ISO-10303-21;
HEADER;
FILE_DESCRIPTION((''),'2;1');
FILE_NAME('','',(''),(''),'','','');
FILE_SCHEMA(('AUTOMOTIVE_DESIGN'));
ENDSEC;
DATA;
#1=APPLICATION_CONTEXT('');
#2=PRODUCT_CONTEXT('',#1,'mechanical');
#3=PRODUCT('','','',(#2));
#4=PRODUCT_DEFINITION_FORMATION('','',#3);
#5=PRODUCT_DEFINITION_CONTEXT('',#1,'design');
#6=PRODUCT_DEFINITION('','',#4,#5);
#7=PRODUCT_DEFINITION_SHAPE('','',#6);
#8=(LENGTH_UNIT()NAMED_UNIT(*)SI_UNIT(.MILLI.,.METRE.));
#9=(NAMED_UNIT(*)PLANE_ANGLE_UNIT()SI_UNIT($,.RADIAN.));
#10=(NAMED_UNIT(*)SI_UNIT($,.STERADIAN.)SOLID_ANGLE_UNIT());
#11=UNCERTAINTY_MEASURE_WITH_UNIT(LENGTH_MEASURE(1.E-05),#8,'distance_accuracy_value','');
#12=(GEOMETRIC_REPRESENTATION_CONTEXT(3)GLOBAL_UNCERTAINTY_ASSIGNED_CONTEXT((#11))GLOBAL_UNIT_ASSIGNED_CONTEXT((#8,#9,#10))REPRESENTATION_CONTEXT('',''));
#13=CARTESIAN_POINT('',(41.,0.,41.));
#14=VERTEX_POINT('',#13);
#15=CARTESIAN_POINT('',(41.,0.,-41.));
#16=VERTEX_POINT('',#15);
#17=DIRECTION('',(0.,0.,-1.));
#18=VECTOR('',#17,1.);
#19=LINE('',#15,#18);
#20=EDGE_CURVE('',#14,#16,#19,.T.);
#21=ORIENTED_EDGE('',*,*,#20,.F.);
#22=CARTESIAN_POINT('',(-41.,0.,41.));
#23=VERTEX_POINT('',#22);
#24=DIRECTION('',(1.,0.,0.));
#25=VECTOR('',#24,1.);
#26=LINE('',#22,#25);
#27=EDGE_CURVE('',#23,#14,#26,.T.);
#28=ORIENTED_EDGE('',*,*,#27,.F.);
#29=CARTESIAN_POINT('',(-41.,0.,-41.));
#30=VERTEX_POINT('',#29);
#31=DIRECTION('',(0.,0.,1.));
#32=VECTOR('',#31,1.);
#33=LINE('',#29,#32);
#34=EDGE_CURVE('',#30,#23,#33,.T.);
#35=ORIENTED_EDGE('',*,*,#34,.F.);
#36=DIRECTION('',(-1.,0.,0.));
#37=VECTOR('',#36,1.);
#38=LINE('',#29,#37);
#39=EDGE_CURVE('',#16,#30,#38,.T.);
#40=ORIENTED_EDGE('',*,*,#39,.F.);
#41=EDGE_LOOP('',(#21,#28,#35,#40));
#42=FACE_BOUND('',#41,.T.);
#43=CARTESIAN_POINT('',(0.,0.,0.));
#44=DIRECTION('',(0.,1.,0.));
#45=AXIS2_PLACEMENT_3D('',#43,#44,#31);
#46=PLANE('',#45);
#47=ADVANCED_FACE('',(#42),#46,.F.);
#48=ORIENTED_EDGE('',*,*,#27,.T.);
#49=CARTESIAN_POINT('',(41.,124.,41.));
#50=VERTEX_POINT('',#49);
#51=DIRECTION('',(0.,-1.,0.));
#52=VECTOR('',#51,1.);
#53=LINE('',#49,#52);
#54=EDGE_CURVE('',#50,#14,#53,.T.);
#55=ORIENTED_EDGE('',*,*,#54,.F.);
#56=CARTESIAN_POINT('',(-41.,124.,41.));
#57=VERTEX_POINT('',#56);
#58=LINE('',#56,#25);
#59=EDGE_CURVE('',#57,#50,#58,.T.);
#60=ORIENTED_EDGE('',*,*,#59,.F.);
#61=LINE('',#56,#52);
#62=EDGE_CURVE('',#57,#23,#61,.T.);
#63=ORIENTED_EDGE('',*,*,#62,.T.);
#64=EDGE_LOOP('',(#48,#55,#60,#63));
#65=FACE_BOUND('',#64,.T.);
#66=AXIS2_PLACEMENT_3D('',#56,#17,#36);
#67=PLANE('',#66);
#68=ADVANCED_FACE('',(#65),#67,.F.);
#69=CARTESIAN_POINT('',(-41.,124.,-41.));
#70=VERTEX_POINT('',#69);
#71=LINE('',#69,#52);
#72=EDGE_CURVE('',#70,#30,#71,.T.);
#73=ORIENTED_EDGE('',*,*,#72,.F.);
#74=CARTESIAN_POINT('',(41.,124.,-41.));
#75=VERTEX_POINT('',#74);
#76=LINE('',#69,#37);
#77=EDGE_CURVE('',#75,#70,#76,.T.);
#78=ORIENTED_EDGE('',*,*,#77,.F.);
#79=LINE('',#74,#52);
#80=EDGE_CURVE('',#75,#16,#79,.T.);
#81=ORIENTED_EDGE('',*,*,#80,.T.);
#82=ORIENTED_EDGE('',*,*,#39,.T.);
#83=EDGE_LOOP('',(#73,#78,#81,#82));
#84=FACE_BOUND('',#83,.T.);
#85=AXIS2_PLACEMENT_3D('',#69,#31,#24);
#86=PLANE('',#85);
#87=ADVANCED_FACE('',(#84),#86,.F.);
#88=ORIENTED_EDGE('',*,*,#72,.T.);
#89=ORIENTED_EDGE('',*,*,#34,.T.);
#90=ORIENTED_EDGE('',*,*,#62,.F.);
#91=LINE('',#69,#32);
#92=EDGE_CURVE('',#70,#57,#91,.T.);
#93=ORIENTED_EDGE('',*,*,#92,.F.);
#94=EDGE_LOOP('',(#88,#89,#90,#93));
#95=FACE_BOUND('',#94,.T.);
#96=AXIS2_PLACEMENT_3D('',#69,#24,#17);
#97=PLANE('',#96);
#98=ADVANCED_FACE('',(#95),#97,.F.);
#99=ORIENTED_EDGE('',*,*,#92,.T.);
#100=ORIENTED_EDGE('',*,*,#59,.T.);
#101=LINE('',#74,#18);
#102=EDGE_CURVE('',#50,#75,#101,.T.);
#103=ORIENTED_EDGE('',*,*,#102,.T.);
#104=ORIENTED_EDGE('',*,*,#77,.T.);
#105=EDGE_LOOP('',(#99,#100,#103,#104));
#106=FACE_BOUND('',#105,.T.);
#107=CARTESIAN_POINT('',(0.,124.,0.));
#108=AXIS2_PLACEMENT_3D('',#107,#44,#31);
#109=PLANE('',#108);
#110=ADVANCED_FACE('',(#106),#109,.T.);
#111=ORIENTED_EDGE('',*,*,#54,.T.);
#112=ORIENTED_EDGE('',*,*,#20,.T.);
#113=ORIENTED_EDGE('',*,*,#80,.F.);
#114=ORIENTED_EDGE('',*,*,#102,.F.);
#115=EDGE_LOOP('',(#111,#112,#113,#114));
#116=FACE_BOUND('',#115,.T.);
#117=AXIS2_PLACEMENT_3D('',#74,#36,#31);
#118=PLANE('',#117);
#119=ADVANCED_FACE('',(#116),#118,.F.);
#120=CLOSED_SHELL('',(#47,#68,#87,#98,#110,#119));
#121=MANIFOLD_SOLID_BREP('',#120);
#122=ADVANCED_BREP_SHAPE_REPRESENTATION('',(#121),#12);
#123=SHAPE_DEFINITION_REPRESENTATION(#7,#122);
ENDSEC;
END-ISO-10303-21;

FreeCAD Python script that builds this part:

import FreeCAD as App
import Part
import Sketcher
from FreeCAD import Vector

doc = App.newDocument("Part")
params = doc.addObject("Spreadsheet::Sheet", "Params")
for row, (alias, value) in enumerate([
    ("sketch1_width", "82 mm"),
    ("pad1_length", "124 mm"),
], start=1):
    params.set(f"A{row}", alias)
    params.set(f"B{row}", "=" + value)
    params.setAlias(f"B{row}", alias)

body = doc.addObject("PartDesign::Body", "Body")

sketch1 = doc.addObject("Sketcher::SketchObject", "Sketch")
body.addObject(sketch1)
sketch1.AttachmentSupport = (doc.XZ_Plane, [""])
sketch1.MapMode = "FlatFace"
sketch1.addGeometry([
    Part.LineSegment(Vector(-41, -41, 0), Vector(-41, 41, 0)),
    Part.LineSegment(Vector(-41, 41, 0), Vector(41, 41, 0)),
    Part.LineSegment(Vector(41, 41, 0), Vector(41, -41, 0)),
    Part.LineSegment(Vector(41, -41, 0), Vector(-41, -41, 0)),
], False)
sketch1.addConstraint([
    Sketcher.Constraint("Coincident", 0, 2, 1, 1),
    Sketcher.Constraint("Coincident", 1, 2, 2, 1),
    Sketcher.Constraint("Coincident", 2, 2, 3, 1),
    Sketcher.Constraint("Coincident", 3, 2, 0, 1),
    Sketcher.Constraint("Vertical", 0),
    Sketcher.Constraint("Horizontal", 1),
    Sketcher.Constraint("Vertical", 2),
    Sketcher.Constraint("Horizontal", 3),
    Sketcher.Constraint("Symmetric", 0, 2, 2, 2, -1, 1),
    Sketcher.Constraint("Equal", 3, 0),
    Sketcher.Constraint("DistanceX", 1, 1, 1, 2, 82.0),
])
sketch1.setExpression("Constraints[10]", "Params.sketch1_width")
pad1 = doc.addObject("PartDesign::Pad", "Pad")
body.addObject(pad1)
pad1.Profile = sketch1
pad1.setExpression("Length", "Params.pad1_length")
pad1.Reversed = True

doc.recompute()
